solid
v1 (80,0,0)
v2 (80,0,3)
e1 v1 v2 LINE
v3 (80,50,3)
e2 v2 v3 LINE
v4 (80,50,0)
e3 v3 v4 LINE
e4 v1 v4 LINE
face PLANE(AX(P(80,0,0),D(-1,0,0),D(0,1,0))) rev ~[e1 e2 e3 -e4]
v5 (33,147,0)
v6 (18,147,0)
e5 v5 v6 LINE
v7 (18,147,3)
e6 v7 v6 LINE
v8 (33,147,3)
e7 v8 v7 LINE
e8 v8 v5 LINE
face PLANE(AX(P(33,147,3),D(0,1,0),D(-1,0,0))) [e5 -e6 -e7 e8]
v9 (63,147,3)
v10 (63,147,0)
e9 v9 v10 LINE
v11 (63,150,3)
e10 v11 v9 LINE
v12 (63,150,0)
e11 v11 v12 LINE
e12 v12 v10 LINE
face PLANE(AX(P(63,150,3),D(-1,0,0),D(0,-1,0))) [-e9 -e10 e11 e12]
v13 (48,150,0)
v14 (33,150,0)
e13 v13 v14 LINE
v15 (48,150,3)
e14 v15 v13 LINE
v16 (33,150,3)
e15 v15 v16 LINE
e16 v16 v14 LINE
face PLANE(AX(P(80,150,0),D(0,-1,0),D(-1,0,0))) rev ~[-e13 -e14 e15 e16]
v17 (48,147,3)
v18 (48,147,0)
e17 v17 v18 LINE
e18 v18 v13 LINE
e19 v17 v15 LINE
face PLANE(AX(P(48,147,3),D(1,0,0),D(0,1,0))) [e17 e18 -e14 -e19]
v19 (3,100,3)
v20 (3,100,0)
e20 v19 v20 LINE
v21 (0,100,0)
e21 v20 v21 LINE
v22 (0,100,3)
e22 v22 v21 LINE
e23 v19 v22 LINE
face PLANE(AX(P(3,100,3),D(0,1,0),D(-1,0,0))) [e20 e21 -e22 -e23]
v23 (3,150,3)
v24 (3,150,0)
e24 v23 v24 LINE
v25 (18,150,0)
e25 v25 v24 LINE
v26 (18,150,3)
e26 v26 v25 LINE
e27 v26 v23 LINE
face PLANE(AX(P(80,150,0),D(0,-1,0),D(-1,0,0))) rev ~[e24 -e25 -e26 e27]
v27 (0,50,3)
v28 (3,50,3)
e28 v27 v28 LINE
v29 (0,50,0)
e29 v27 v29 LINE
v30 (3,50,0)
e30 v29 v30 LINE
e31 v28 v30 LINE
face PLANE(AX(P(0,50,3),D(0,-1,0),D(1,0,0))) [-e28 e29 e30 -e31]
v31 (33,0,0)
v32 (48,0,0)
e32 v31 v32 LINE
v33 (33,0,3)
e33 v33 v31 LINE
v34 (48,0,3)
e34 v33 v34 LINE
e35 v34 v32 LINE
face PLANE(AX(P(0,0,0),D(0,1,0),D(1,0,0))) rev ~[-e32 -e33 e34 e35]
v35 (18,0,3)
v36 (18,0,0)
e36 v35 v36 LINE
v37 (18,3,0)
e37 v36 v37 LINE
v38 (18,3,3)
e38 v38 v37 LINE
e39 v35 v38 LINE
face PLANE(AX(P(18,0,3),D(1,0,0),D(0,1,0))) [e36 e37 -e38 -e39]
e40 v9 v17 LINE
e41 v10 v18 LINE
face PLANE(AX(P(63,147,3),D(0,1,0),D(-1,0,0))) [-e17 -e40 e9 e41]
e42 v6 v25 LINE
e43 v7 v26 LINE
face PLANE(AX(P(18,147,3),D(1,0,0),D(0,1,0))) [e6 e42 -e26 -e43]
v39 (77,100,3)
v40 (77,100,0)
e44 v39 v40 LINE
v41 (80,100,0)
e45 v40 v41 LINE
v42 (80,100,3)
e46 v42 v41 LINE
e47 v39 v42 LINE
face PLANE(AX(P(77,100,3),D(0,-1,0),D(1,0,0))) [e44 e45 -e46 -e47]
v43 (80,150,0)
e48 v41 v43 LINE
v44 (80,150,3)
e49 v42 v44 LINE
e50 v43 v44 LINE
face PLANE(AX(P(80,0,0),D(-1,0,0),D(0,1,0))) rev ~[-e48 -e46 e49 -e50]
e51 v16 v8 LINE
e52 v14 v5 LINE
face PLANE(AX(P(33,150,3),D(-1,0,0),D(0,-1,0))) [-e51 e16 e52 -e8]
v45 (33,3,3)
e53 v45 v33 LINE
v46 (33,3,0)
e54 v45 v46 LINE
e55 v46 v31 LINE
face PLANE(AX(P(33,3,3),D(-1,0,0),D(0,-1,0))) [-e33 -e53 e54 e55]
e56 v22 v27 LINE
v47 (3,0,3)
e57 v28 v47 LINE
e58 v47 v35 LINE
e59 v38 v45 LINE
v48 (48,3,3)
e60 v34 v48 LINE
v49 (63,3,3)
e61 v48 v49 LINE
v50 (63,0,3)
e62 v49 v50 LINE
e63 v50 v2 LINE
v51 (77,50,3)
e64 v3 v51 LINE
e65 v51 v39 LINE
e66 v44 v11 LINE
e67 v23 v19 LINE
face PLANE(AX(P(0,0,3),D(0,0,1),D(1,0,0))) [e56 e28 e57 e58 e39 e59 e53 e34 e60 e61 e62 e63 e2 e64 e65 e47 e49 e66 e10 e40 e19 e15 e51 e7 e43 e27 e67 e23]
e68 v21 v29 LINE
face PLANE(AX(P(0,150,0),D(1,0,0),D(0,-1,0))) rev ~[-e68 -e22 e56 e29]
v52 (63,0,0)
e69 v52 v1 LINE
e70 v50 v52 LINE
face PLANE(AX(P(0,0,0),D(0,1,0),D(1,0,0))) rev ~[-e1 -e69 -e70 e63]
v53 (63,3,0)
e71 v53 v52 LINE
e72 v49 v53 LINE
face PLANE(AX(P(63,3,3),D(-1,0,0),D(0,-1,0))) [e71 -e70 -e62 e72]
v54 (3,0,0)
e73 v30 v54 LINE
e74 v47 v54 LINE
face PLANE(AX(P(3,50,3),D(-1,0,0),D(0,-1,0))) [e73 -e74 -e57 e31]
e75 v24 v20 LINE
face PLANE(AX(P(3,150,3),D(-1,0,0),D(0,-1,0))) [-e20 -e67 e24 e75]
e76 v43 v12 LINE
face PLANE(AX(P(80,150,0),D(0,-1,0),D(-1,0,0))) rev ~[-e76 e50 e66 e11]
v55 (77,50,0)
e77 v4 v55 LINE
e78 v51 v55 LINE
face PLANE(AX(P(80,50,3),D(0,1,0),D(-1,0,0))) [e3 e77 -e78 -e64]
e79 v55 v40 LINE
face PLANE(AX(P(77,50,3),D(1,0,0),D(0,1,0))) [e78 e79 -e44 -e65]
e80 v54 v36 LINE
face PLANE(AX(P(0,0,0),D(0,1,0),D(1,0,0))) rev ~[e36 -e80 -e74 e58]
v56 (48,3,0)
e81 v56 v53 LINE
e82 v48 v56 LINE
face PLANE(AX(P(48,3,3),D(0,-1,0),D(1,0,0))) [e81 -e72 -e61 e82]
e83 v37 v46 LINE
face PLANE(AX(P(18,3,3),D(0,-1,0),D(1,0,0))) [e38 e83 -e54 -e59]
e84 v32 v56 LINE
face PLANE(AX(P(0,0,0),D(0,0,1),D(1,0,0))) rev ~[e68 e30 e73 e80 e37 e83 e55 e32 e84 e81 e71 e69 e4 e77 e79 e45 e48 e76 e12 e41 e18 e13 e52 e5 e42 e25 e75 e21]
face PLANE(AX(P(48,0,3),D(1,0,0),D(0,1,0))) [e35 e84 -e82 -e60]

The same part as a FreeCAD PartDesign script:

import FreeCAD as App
import Part
import Sketcher

V = App.Vector


def add_polygon(sketch, points):
    """Adds a closed chain of lines whose ends are joined by coincident constraints."""
    first, n = sketch.GeometryCount, len(points)
    for a, b in zip(points, points[1:] + points[:1]):
        sketch.addGeometry(Part.LineSegment(App.Vector(*a, 0), App.Vector(*b, 0)), False)
    for i in range(n):
        sketch.addConstraint(Sketcher.Constraint("Coincident", first + i, 2, first + (i + 1) % n, 1))

doc = App.newDocument("Part")
body = doc.addObject("PartDesign::Body", "Body")

# Sketch on XY plane
sketch1 = body.newObject("Sketcher::SketchObject", "Sketch")
sketch1.AttachmentSupport = (doc.getObject("XY_Plane"), [""])
sketch1.MapMode = "FlatFace"
add_polygon(sketch1, [(0, 150), (0, 0), (80, 0), (80, 150)])  # lines 0-3
sketch1.addConstraint([
    Sketcher.Constraint("Vertical", 0),
    Sketcher.Constraint("Horizontal", 1),
    Sketcher.Constraint("Vertical", 2),
    Sketcher.Constraint("Horizontal", 3),
    Sketcher.Constraint("Coincident", 0, 2, -1, 1),
    Sketcher.Constraint("DistanceX", 1, 1, 1, 2, 80.0),
    Sketcher.Constraint("DistanceY", 0, 2, 0, 1, 150.0),
])
pad1 = body.newObject("PartDesign::Pad", "Pad")
pad1.Profile = sketch1
pad1.Length = 3

# Sketch on XY plane
sketch2 = body.newObject("Sketcher::SketchObject", "Sketch001")
sketch2.AttachmentSupport = (doc.getObject("XY_Plane"), [""])
sketch2.MapMode = "FlatFace"
sketch2.AttachmentOffset = App.Placement(V(0, 0, 3), App.Rotation())
add_polygon(sketch2, [(0, 0), (3, 0), (3, 50), (0, 50)])  # lines 0-3
add_polygon(sketch2, [(3, 150), (0, 150), (0, 100), (3, 100)])  # lines 4-7
add_polygon(sketch2, [(80, 100), (77, 100), (77, 50), (80, 50)])  # lines 8-11
sketch2.addConstraint([
    Sketcher.Constraint("Horizontal", 0),
    Sketcher.Constraint("Vertical", 1),
    Sketcher.Constraint("Horizontal", 2),
    Sketcher.Constraint("Vertical", 3),
    Sketcher.Constraint("Horizontal", 4),
    Sketcher.Constraint("Vertical", 5),
    Sketcher.Constraint("Horizontal", 6),
    Sketcher.Constraint("Vertical", 7),
    Sketcher.Constraint("Horizontal", 8),
    Sketcher.Constraint("Vertical", 9),
    Sketcher.Constraint("Horizontal", 10),
    Sketcher.Constraint("Vertical", 11),
    Sketcher.Constraint("Coincident", 3, 2, -1, 1),
    Sketcher.Constraint("PointOnObject", 4, 2, -2),
    Sketcher.Constraint("Horizontal", 6, 2, 8, 2),
    Sketcher.Constraint("Horizontal", 2, 2, 9, 2),
    Sketcher.Constraint("Vertical", 1, 2, 6, 2),
    Sketcher.Constraint("Equal", 6, 8),
    Sketcher.Constraint("Equal", 3, 5),
    Sketcher.Constraint("Equal", 7, 9),
    Sketcher.Constraint("DistanceX", 0, 1, 0, 2, 3.0),
    Sketcher.Constraint("DistanceY", 1, 1, 1, 2, 50.0),
    Sketcher.Constraint("DistanceX", -1, 1, 8, 2, 77.0),
])
pocket1 = body.newObject("PartDesign::Pocket", "Pocket")
pocket1.Profile = sketch2
pocket1.Length = 3

# Sketch on XY plane
sketch3 = body.newObject("Sketcher::SketchObject", "Sketch002")
sketch3.AttachmentSupport = (doc.getObject("XY_Plane"), [""])
sketch3.MapMode = "FlatFace"
sketch3.AttachmentOffset = App.Placement(V(0, 0, 3), App.Rotation())
add_polygon(sketch3, [(33, 3), (18, 3), (18, 0), (33, 0)])  # lines 0-3
add_polygon(sketch3, [(63, 3), (48, 3), (48, 0), (63, 0)])  # lines 4-7
sketch3.addConstraint([
    Sketcher.Constraint("Horizontal", 0),
    Sketcher.Constraint("Vertical", 1),
    Sketcher.Constraint("Horizontal", 2),
    Sketcher.Constraint("Vertical", 3),
    Sketcher.Constraint("Horizontal", 4),
    Sketcher.Constraint("Vertical", 5),
    Sketcher.Constraint("Horizontal", 6),
    Sketcher.Constraint("Vertical", 7),
    Sketcher.Constraint("PointOnObject", 1, 2, -1),
    Sketcher.Constraint("PointOnObject", 5, 2, -1),
    Sketcher.Constraint("Horizontal", 3, 2, 4, 2),
    Sketcher.Constraint("Equal", 2, 4),
    Sketcher.Constraint("DistanceX", 0, 2, 0, 1, 15.0),
    Sketcher.Constraint("DistanceY", 1, 2, 1, 1, 3.0),
    Sketcher.Constraint("DistanceX", 3, 2, 4, 2, 15.0),
    Sketcher.Constraint("DistanceX", -1, 1, 0, 2, 18.0),
])
pocket2 = body.newObject("PartDesign::Pocket", "Pocket001")
pocket2.Profile = sketch3
pocket2.Length = 10

# Sketch on XY plane
sketch4 = body.newObject("Sketcher::SketchObject", "Sketch003")
sketch4.AttachmentSupport = (doc.getObject("XY_Plane"), [""])
sketch4.MapMode = "FlatFace"
sketch4.AttachmentOffset = App.Placement(V(0, 0, 3), App.Rotation())
add_polygon(sketch4, [(33, 150), (18, 150), (18, 147), (33, 147)])  # lines 0-3
add_polygon(sketch4, [(63, 150), (48, 150), (48, 147), (63, 147)])  # lines 4-7
sketch4.addConstraint([
    Sketcher.Constraint("Horizontal", 0),
    Sketcher.Constraint("Vertical", 1),
    Sketcher.Constraint("Horizontal", 2),
    Sketcher.Constraint("Vertical", 3),
    Sketcher.Constraint("Horizontal", 4),
    Sketcher.Constraint("Vertical", 5),
    Sketcher.Constraint("Horizontal", 6),
    Sketcher.Constraint("Vertical", 7),
    Sketcher.Constraint("Horizontal", 3, 2, 4, 2),
    Sketcher.Constraint("Horizontal", 2, 2, 5, 2),
    Sketcher.Constraint("Equal", 2, 4),
    Sketcher.Constraint("DistanceX", 0, 2, 0, 1, 15.0),
    Sketcher.Constraint("DistanceY", 1, 2, 1, 1, 3.0),
    Sketcher.Constraint("DistanceX", 3, 2, 4, 2, 15.0),
    Sketcher.Constraint("DistanceX", -1, 1, 0, 2, 18.0),
    Sketcher.Constraint("DistanceY", -1, 1, 0, 2, 150.0),
])
pocket3 = body.newObject("PartDesign::Pocket", "Pocket002")
pocket3.Profile = sketch4
pocket3.Length = 10

doc.recompute()
